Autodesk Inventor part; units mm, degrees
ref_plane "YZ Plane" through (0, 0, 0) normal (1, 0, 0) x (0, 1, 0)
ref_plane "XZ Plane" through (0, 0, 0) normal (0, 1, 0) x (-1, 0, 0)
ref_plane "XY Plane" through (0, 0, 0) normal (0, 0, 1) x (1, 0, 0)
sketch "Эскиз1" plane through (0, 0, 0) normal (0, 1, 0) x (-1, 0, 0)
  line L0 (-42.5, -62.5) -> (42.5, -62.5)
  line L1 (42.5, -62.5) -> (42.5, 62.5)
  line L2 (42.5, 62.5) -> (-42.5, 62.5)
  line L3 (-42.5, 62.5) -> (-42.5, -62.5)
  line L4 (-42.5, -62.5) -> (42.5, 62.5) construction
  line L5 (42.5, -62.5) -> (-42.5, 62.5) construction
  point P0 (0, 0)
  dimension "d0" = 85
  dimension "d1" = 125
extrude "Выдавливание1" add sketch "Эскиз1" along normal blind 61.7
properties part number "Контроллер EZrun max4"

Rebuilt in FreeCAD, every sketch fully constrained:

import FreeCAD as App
import Part
import Sketcher


def add_polygon(sketch, points):
    """Adds a closed chain of lines whose ends are joined by coincident constraints."""
    first, n = sketch.GeometryCount, len(points)
    for a, b in zip(points, points[1:] + points[:1]):
        sketch.addGeometry(Part.LineSegment(App.Vector(*a, 0), App.Vector(*b, 0)), False)
    for i in range(n):
        sketch.addConstraint(Sketcher.Constraint("Coincident", first + i, 2, first + (i + 1) % n, 1))

doc = App.newDocument("Part")
body = doc.addObject("PartDesign::Body", "Body")

# Sketch on XZ plane
sketch1 = body.newObject("Sketcher::SketchObject", "Sketch")
sketch1.AttachmentSupport = (doc.getObject("XZ_Plane"), [""])
sketch1.MapMode = "FlatFace"
add_polygon(sketch1, [(42.5, 62.5), (42.5, -62.5), (-42.5, -62.5), (-42.5, 62.5)])  # lines 0-3
sketch1.addConstraint([
    Sketcher.Constraint("Vertical", 0),
    Sketcher.Constraint("Horizontal", 1),
    Sketcher.Constraint("Vertical", 2),
    Sketcher.Constraint("Horizontal", 3),
    Sketcher.Constraint("Symmetric", 0, 2, 2, 2, -1, 1),
    Sketcher.Constraint("DistanceX", 1, 2, 1, 1, 85.0),
    Sketcher.Constraint("DistanceY", 0, 2, 0, 1, 125.0),
])
pad1 = body.newObject("PartDesign::Pad", "Pad")
pad1.Profile = sketch1
pad1.Length = 61.7
pad1.Reversed = True

doc.recompute()
